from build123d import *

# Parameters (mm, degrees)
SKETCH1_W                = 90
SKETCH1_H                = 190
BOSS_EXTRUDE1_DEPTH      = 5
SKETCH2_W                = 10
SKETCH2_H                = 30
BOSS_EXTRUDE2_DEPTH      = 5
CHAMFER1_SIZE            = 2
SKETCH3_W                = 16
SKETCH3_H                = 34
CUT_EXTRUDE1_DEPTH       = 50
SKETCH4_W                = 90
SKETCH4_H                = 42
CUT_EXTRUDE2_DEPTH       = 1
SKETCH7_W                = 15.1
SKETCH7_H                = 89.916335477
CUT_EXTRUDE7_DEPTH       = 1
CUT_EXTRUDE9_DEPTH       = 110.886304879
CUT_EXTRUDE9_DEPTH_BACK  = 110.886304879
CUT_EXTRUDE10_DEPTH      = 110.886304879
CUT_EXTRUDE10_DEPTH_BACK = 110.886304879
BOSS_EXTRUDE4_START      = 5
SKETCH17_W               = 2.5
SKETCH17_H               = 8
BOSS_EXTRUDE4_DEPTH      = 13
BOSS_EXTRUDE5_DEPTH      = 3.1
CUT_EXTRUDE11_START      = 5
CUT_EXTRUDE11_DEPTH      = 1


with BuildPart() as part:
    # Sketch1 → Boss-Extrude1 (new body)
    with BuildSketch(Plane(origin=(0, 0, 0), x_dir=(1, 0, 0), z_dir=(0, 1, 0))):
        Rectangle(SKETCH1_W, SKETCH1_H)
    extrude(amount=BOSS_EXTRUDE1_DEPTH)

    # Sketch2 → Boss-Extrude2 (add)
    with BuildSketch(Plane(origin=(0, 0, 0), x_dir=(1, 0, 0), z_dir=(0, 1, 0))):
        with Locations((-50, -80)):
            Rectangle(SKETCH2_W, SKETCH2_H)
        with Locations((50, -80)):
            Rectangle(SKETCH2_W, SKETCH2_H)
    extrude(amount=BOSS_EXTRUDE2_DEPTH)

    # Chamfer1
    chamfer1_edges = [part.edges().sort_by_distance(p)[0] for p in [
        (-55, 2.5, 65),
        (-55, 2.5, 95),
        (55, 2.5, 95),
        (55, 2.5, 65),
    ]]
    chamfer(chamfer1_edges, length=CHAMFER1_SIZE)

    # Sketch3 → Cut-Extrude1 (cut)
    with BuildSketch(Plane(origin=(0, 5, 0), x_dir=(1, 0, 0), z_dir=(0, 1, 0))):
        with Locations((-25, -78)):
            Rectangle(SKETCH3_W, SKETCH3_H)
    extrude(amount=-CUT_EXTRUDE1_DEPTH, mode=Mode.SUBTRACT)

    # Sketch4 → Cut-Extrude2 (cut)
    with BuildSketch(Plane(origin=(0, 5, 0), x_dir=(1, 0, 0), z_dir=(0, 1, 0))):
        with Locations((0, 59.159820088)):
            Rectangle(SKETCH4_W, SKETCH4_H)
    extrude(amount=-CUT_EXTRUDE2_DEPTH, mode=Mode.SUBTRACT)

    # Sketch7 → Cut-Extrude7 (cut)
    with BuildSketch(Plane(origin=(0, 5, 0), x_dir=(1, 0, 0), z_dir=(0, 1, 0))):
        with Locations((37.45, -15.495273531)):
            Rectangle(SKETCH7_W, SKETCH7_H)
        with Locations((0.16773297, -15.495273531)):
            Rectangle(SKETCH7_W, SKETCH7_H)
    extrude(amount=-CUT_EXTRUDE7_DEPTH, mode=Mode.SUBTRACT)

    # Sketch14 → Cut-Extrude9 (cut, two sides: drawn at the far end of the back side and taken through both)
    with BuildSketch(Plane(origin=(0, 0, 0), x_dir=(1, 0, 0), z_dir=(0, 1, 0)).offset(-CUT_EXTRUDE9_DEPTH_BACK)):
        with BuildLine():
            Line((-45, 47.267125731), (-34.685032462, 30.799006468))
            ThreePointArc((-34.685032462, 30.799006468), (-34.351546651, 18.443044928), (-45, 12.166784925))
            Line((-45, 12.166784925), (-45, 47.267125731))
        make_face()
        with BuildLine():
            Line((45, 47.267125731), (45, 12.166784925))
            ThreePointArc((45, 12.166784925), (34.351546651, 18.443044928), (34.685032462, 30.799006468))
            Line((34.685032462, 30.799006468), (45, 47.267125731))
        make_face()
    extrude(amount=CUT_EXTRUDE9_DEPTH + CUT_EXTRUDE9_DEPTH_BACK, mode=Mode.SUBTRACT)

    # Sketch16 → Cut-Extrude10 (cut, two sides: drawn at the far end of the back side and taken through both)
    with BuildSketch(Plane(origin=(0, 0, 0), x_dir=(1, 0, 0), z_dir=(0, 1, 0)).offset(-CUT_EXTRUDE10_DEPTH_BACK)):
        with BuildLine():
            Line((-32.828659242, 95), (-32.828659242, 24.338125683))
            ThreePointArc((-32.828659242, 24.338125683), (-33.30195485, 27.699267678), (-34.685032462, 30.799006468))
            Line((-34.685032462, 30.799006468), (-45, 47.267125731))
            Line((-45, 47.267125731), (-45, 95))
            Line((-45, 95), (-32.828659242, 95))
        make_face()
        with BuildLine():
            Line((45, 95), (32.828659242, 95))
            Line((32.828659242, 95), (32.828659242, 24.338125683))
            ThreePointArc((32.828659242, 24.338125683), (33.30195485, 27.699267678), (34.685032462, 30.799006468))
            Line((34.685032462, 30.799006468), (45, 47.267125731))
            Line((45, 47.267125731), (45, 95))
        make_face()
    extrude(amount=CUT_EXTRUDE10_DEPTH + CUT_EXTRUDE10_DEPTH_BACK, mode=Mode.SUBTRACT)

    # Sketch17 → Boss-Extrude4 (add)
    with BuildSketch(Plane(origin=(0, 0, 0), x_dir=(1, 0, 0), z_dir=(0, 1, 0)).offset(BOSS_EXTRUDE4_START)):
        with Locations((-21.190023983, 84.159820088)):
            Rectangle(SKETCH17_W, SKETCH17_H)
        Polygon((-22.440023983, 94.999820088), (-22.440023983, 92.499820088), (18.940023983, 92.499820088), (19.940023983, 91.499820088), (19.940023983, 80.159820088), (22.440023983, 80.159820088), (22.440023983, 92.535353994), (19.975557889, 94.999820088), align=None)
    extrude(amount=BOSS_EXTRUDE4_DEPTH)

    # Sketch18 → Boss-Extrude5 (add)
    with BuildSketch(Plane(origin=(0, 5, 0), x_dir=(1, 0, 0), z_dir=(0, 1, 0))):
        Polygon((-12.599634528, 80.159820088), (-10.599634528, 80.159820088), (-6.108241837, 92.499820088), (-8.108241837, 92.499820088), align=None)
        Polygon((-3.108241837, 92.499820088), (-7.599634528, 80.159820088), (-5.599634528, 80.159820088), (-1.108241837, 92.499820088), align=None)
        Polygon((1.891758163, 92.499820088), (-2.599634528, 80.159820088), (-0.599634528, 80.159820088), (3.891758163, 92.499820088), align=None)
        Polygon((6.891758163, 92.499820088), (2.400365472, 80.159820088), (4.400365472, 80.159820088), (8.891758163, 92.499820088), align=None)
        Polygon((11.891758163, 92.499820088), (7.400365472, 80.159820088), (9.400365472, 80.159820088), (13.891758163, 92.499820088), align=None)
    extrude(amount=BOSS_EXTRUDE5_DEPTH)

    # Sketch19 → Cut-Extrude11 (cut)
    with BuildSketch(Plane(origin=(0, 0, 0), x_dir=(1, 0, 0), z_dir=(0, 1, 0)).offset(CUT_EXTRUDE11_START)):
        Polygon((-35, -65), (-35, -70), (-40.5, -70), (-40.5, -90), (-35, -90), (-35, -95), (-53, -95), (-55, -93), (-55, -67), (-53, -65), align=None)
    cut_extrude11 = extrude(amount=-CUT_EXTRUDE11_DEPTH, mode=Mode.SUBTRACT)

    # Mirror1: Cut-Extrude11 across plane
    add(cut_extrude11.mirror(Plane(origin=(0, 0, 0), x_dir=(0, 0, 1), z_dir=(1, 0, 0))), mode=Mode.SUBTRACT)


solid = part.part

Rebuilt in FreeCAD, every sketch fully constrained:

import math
import FreeCAD as App
import Part
import Sketcher

V = App.Vector
Q = App.Units.Quantity


def edges_at(feature, points):
    """Names of the edges that pass closest to the given points."""
    edges = feature.Shape.Edges
    near = lambda p: min(range(len(edges)), key=lambda i: edges[i].distToShape(Part.Vertex(*p))[0])
    return sorted({f"Edge{near(p) + 1}" for p in points})


def add_polygon(sketch, points):
    """Adds a closed chain of lines whose ends are joined by coincident constraints."""
    first, n = sketch.GeometryCount, len(points)
    for a, b in zip(points, points[1:] + points[:1]):
        sketch.addGeometry(Part.LineSegment(App.Vector(*a, 0), App.Vector(*b, 0)), False)
    for i in range(n):
        sketch.addConstraint(Sketcher.Constraint("Coincident", first + i, 2, first + (i + 1) % n, 1))

doc = App.newDocument("Part")
body = doc.addObject("PartDesign::Body", "Body")

# Sketch on XZ plane
sketch1 = body.newObject("Sketcher::SketchObject", "Sketch")
sketch1.AttachmentSupport = (doc.getObject("XZ_Plane"), [""])
sketch1.MapMode = "FlatFace"
add_polygon(sketch1, [(-45, -95), (-45, 95), (45, 95), (45, -95)])  # lines 0-3
sketch1.addConstraint([
    Sketcher.Constraint("Vertical", 0),
    Sketcher.Constraint("Horizontal", 1),
    Sketcher.Constraint("Vertical", 2),
    Sketcher.Constraint("Horizontal", 3),
    Sketcher.Constraint("Symmetric", 0, 2, 2, 2, -1, 1),
    Sketcher.Constraint("DistanceX", 1, 1, 1, 2, 90.0),
    Sketcher.Constraint("DistanceY", 0, 1, 0, 2, 190.0),
])
pad1 = body.newObject("PartDesign::Pad", "Pad")
pad1.Profile = sketch1
pad1.Length = 5
pad1.Reversed = True

# Sketch on XZ plane
sketch2 = body.newObject("Sketcher::SketchObject", "Sketch001")
sketch2.AttachmentSupport = (doc.getObject("XZ_Plane"), [""])
sketch2.MapMode = "FlatFace"
add_polygon(sketch2, [(-55, 65), (-55, 95), (-45, 95), (-45, 65)])  # lines 0-3
add_polygon(sketch2, [(45, 65), (45, 95), (55, 95), (55, 65)])  # lines 4-7
sketch2.addConstraint([
    Sketcher.Constraint("Vertical", 0),
    Sketcher.Constraint("Horizontal", 1),
    Sketcher.Constraint("Vertical", 2),
    Sketcher.Constraint("Horizontal", 3),
    Sketcher.Constraint("Vertical", 4),
    Sketcher.Constraint("Horizontal", 5),
    Sketcher.Constraint("Vertical", 6),
    Sketcher.Constraint("Horizontal", 7),
    Sketcher.Constraint("Symmetric", 1, 2, 4, 2, -2),
    Sketcher.Constraint("Symmetric", 3, 2, 6, 2, -2),
    Sketcher.Constraint("DistanceX", 1, 1, 1, 2, 10.0),
    Sketcher.Constraint("DistanceY", 0, 1, 0, 2, 30.0),
    Sketcher.Constraint("DistanceX", 0, 2, -1, 1, 55.0),
    Sketcher.Constraint("DistanceY", -1, 1, 0, 2, 95.0),
])
pad2 = body.newObject("PartDesign::Pad", "Pad001")
pad2.Profile = sketch2
pad2.Length = 5
pad2.Reversed = True
doc.recompute()

chamfer = body.newObject("PartDesign::Chamfer", "Chamfer")
chamfer.Base = (pad2, edges_at(pad2, [
    (-55, 2.5, 65),
    (-55, 2.5, 95),
    (55, 2.5, 95),
    (55, 2.5, 65),
]))
chamfer.Size = 2

# Sketch on XZ plane
sketch3 = body.newObject("Sketcher::SketchObject", "Sketch002")
sketch3.AttachmentSupport = (doc.getObject("XZ_Plane"), [""])
sketch3.MapMode = "FlatFace"
sketch3.AttachmentOffset = App.Placement(V(0, 0, -5), App.Rotation())
add_polygon(sketch3, [(-33, 61), (-33, 95), (-17, 95), (-17, 61)])  # lines 0-3
sketch3.addConstraint([
    Sketcher.Constraint("Vertical", 0),
    Sketcher.Constraint("Horizontal", 1),
    Sketcher.Constraint("Vertical", 2),
    Sketcher.Constraint("Horizontal", 3),
    Sketcher.Constraint("DistanceX", 1, 1, 1, 2, 16.0),
    Sketcher.Constraint("DistanceY", 0, 1, 0, 2, 34.0),
    Sketcher.Constraint("DistanceX", 0, 2, -1, 1, 33.0),
    Sketcher.Constraint("DistanceY", -1, 1, 0, 2, 95.0),
])
pocket1 = body.newObject("PartDesign::Pocket", "Pocket")
pocket1.Profile = sketch3
pocket1.Length = 50
pocket1.Reversed = True

# Sketch on XZ plane
sketch4 = body.newObject("Sketcher::SketchObject", "Sketch003")
sketch4.AttachmentSupport = (doc.getObject("XZ_Plane"), [""])
sketch4.MapMode = "FlatFace"
sketch4.AttachmentOffset = App.Placement(V(0, 0, -5), App.Rotation())
add_polygon(sketch4, [(-45, -80), (-45, -38), (45, -38), (45, -80)])  # lines 0-3
sketch4.addConstraint([
    Sketcher.Constraint("Vertical", 0),
    Sketcher.Constraint("Horizontal", 1),
    Sketcher.Constraint("Vertical", 2),
    Sketcher.Constraint("Horizontal", 3),
    Sketcher.Constraint("DistanceX", 1, 1, 1, 2, 90.0),
    Sketcher.Constraint("DistanceY", 0, 1, 0, 2, 42.0),
    Sketcher.Constraint("DistanceX", 0, 2, -1, 1, 45.0),
    Sketcher.Constraint("DistanceY", 0, 2, -1, 1, 38.15982),
])
pocket2 = body.newObject("PartDesign::Pocket", "Pocket001")
pocket2.Profile = sketch4
pocket2.Length = 1
pocket2.Reversed = True

# Sketch on XZ plane
sketch5 = body.newObject("Sketcher::SketchObject", "Sketch004")
sketch5.AttachmentSupport = (doc.getObject("XZ_Plane"), [""])
sketch5.MapMode = "FlatFace"
sketch5.AttachmentOffset = App.Placement(V(0, 0, -5), App.Rotation())
add_polygon(sketch5, [(30, -29), (30, 60), (45, 60), (45, -29)])  # lines 0-3
add_polygon(sketch5, [(-7, -29), (-7, 60), (8, 60), (8, -29)])  # lines 4-7
sketch5.addConstraint([
    Sketcher.Constraint("Vertical", 0),
    Sketcher.Constraint("Horizontal", 1),
    Sketcher.Constraint("Vertical", 2),
    Sketcher.Constraint("Horizontal", 3),
    Sketcher.Constraint("Vertical", 4),
    Sketcher.Constraint("Horizontal", 5),
    Sketcher.Constraint("Vertical", 6),
    Sketcher.Constraint("Horizontal", 7),
    Sketcher.Constraint("Horizontal", 1, 2, 4, 2),
    Sketcher.Constraint("Horizontal", 3, 2, 6, 2),
    Sketcher.Constraint("Equal", 3, 5),
    Sketcher.Constraint("DistanceX", 1, 1, 1, 2, 15.1),
    Sketcher.Constraint("DistanceX", -1, 1, 1, 2, 45.0),
    Sketcher.Constraint("DistanceY", 0, 1, 0, 2, 89.916335),
    Sketcher.Constraint("DistanceY", -1, 1, 0, 2, 60.453441),
    Sketcher.Constraint("DistanceX", 4, 2, -1, 1, 7.382267),
])
pocket3 = body.newObject("PartDesign::Pocket", "Pocket002")
pocket3.Profile = sketch5
pocket3.Length = 1
pocket3.Reversed = True

# Sketch on XZ plane
sketch6 = body.newObject("Sketcher::SketchObject", "Sketch005")
sketch6.AttachmentSupport = (doc.getObject("XZ_Plane"), [""])
sketch6.MapMode = "FlatFace"
sketch6.addGeometry([
    Part.LineSegment(V(-35, -31, 0), V(-45, -47, 0)),  # 0
    Part.LineSegment(V(-45, -47, 0), V(-45, -12, 0)),  # 1
    Part.ArcOfCircle(Part.Circle(V(-45, -24, 0), V(0, 0, 1), 12), math.radians(-32), math.radians(90)),  # 2
    Part.LineSegment(V(45, -12, 0), V(45, -47, 0)),  # 3
    Part.LineSegment(V(45, -47, 0), V(35, -31, 0)),  # 4
    Part.ArcOfCircle(Part.Circle(V(45, -24, 0), V(0, 0, 1), 12), math.radians(90), math.radians(212)),  # 5
], False)
sketch6.addConstraint([
    Sketcher.Constraint("Coincident", 0, 2, 1, 1),
    Sketcher.Constraint("Coincident", 1, 2, 2, 2),
    Sketcher.Constraint("Tangent", 2, 1, 0, 1),
    Sketcher.Constraint("Coincident", 3, 2, 4, 1),
    Sketcher.Constraint("Tangent", 4, 2, 5, 2),
    Sketcher.Constraint("Coincident", 5, 1, 3, 1),
    Sketcher.Constraint("Vertical", 1),
    Sketcher.Constraint("Vertical", 3),
    Sketcher.Constraint("Equal", 2, 5),
    Sketcher.Constraint("Symmetric", 2, 3, 5, 3, -2),
    Sketcher.Constraint("Symmetric", 0, 2, 3, 2, -2),
    Sketcher.Constraint("Vertical", 2, 3, 0, 2),
    Sketcher.Constraint("DistanceX", 2, 3, -1, 1, 45.0),
    Sketcher.Constraint("Radius", 2, 12.171341),
    Sketcher.Constraint("DistanceY", 0, 2, 2, 3, 22.929),
    Sketcher.Constraint("DistanceY", 2, 3, -1, 1, 24.338126),
])
pocket4 = body.newObject("PartDesign::Pocket", "Pocket003")
pocket4.Profile = sketch6
pocket4.Type = "ThroughAll"
pocket4.Midplane = True

# Sketch on XZ plane
sketch7 = body.newObject("Sketcher::SketchObject", "Sketch006")
sketch7.AttachmentSupport = (doc.getObject("XZ_Plane"), [""])
sketch7.MapMode = "FlatFace"
sketch7.addGeometry([
    Part.LineSegment(V(-33, -24, 0), V(-33, -95, 0)),  # 0
    Part.LineSegment(V(-33, -95, 0), V(-45, -95, 0)),  # 1
    Part.LineSegment(V(-45, -95, 0), V(-45, -47, 0)),  # 2
    Part.LineSegment(V(-45, -47, 0), V(-35, -31, 0)),  # 3
    Part.ArcOfCircle(Part.Circle(V(-45, -24, 0), V(0, 0, 1), 12), math.radians(-32), math.radians(0)),  # 4
    Part.LineSegment(V(45, -95, 0), V(33, -95, 0)),  # 5
    Part.LineSegment(V(33, -95, 0), V(33, -24, 0)),  # 6
    Part.ArcOfCircle(Part.Circle(V(45, -24, 0), V(0, 0, 1), 12), math.radians(180), math.radians(212)),  # 7
    Part.LineSegment(V(35, -31, 0), V(45, -47, 0)),  # 8
    Part.LineSegment(V(45, -47, 0), V(45, -95, 0)),  # 9
], False)
sketch7.addConstraint([
    Sketcher.Constraint("Coincident", 0, 2, 1, 1),
    Sketcher.Constraint("Coincident", 1, 2, 2, 1),
    Sketcher.Constraint("Coincident", 2, 2, 3, 1),
    Sketcher.Constraint("Tangent", 3, 2, 4, 1),
    Sketcher.Constraint("Tangent", 4, 2, 0, 1),
    Sketcher.Constraint("Coincident", 5, 2, 6, 1),
    Sketcher.Constraint("Tangent", 6, 2, 7, 1),
    Sketcher.Constraint("Tangent", 7, 2, 8, 1),
    Sketcher.Constraint("Coincident", 8, 2, 9, 1),
    Sketcher.Constraint("Coincident", 9, 2, 5, 1),
    Sketcher.Constraint("Vertical", 0),
    Sketcher.Constraint("Horizontal", 1),
    Sketcher.Constraint("Vertical", 2),
    Sketcher.Constraint("Horizontal", 5),
    Sketcher.Constraint("Vertical", 6),
    Sketcher.Constraint("Vertical", 9),
    Sketcher.Constraint("Equal", 4, 7),
    Sketcher.Constraint("Symmetric", 4, 3, 7, 3, -2),
    Sketcher.Constraint("Symmetric", 2, 2, 8, 2, -2),
    Sketcher.Constraint("Horizontal", 1, 2, 5, 2),
    Sketcher.Constraint("Vertical", 4, 3, 1, 2),
    Sketcher.Constraint("DistanceX", 4, 3, -1, 1, 45.0),
    Sketcher.Constraint("DistanceY", 0, 2, -1, 1, 95.0),
    Sketcher.Constraint("Radius", 4, 12.171341),
    Sketcher.Constraint("DistanceY", 2, 2, 4, 3, 22.929),
    Sketcher.Constraint("DistanceY", 0, 2, 0, 1, 70.661874),
])
pocket5 = body.newObject("PartDesign::Pocket", "Pocket004")
pocket5.Profile = sketch7
pocket5.Type = "ThroughAll"
pocket5.Midplane = True

# Sketch on XZ plane
sketch8 = body.newObject("Sketcher::SketchObject", "Sketch007")
sketch8.AttachmentSupport = (doc.getObject("XZ_Plane"), [""])
sketch8.MapMode = "FlatFace"
sketch8.AttachmentOffset = App.Placement(V(0, 0, -5), App.Rotation())
add_polygon(sketch8, [(-22.4, -88.2), (-22.4, -80.2), (-19.9, -80.2), (-19.9, -88.2)])  # lines 0-3
add_polygon(sketch8, [(-22.4, -95), (-22.4, -92.5), (18.9, -92.5), (19.9, -91.5), (19.9, -80.2), (22.4, -80.2), (22.4, -92.5), (20, -95)])  # lines 4-11
sketch8.addConstraint([
    Sketcher.Constraint("Vertical", 0),
    Sketcher.Constraint("Horizontal", 1),
    Sketcher.Constraint("Vertical", 2),
    Sketcher.Constraint("Horizontal", 3),
    Sketcher.Constraint("Vertical", 4),
    Sketcher.Constraint("Horizontal", 5),
    Sketcher.Constraint("Vertical", 7),
    Sketcher.Constraint("Horizontal", 8),
    Sketcher.Constraint("Vertical", 9),
    Sketcher.Constraint("Horizontal", 11),
    Sketcher.Constraint("Symmetric", 1, 2, 7, 2, -2),
    Sketcher.Constraint("Parallel", 6, 10),
    Sketcher.Constraint("Vertical", 3, 2, 4, 2),
    Sketcher.Constraint("Equal", 3, 8),
    Sketcher.Constraint("Equal", 8, 4),
    Sketcher.Constraint("DistanceY", 0, 1, 0, 2, 8.0),
    Sketcher.Constraint("Angle", 6, Q("45 deg")),
    Sketcher.Constraint("DistanceX", 1, 1, 1, 2, 2.5),
    Sketcher.Constraint("DistanceX", 5, 2, 6, 2, 1.0),
    Sketcher.Constraint("DistanceY", 7, 1, 7, 2, 11.34),
    Sketcher.Constraint("DistanceX", 11, 2, 11, 1, 42.415582),
    Sketcher.Constraint("Distance", 10, 3.485281),
    Sketcher.Constraint("DistanceY", 0, 2, -1, 1, 80.15982),
])
pad3 = body.newObject("PartDesign::Pad", "Pad002")
pad3.Profile = sketch8
pad3.Length = 13
pad3.Reversed = True

# Sketch on XZ plane
sketch9 = body.newObject("Sketcher::SketchObject", "Sketch008")
sketch9.AttachmentSupport = (doc.getObject("XZ_Plane"), [""])
sketch9.MapMode = "FlatFace"
sketch9.AttachmentOffset = App.Placement(V(0, 0, -5), App.Rotation())
add_polygon(sketch9, [(-12.6, -80.2), (-10.6, -80.2), (-6.1, -92.5), (-8.1, -92.5)])  # lines 0-3
add_polygon(sketch9, [(-3.1, -92.5), (-7.6, -80.2), (-5.6, -80.2), (-1.1, -92.5)])  # lines 4-7
add_polygon(sketch9, [(1.9, -92.5), (-2.6, -80.2), (-0.6, -80.2), (3.9, -92.5)])  # lines 8-11
add_polygon(sketch9, [(6.9, -92.5), (2.4, -80.2), (4.4, -80.2), (8.9, -92.5)])  # lines 12-15
add_polygon(sketch9, [(11.9, -92.5), (7.4, -80.2), (9.4, -80.2), (13.9, -92.5)])  # lines 16-19
sketch9.addConstraint([
    Sketcher.Constraint("Horizontal", 0),
    Sketcher.Constraint("Horizontal", 2),
    Sketcher.Constraint("Horizontal", 5),
    Sketcher.Constraint("Horizontal", 7),
    Sketcher.Constraint("Horizontal", 9),
    Sketcher.Constraint("Horizontal", 11),
    Sketcher.Constraint("Horizontal", 13),
    Sketcher.Constraint("Horizontal", 15),
    Sketcher.Constraint("Horizontal", 17),
    Sketcher.Constraint("Horizontal", 19),
    Sketcher.Constraint("Parallel", 1, 3),
    Sketcher.Constraint("Parallel", 3, 4),
    Sketcher.Constraint("Parallel", 4, 6),
    Sketcher.Constraint("Parallel", 6, 8),
    Sketcher.Constraint("Parallel", 8, 10),
    Sketcher.Constraint("Parallel", 10, 12),
    Sketcher.Constraint("Parallel", 12, 14),
    Sketcher.Constraint("Parallel", 14, 16),
    Sketcher.Constraint("Parallel", 16, 18),
    Sketcher.Constraint("Horizontal", 3, 2, 4, 2),
    Sketcher.Constraint("Horizontal", 2, 2, 6, 2),
    Sketcher.Constraint("Horizontal", 5, 2, 8, 2),
    Sketcher.Constraint("Horizontal", 7, 2, 10, 2),
    Sketcher.Constraint("Horizontal", 9, 2, 12, 2),
    Sketcher.Constraint("Horizontal", 11, 2, 14, 2),
    Sketcher.Constraint("Horizontal", 13, 2, 16, 2),
    Sketcher.Constraint("Horizontal", 15, 2, 18, 2),
    Sketcher.Constraint("Equal", 2, 5),
    Sketcher.Constraint("Equal", 7, 9),
    Sketcher.Constraint("Equal", 11, 13),
    Sketcher.Constraint("Equal", 15, 17),
    Sketcher.Constraint("DistanceX", 0, 1, 0, 2, 2.0),
    Sketcher.Constraint("Angle", 1, Q("-70 deg")),
    Sketcher.Constraint("DistanceX", 0, 2, 4, 2, 3.0),
    Sketcher.Constraint("DistanceX", 5, 2, 8, 2, 3.0),
    Sketcher.Constraint("DistanceX", 9, 2, 12, 2, 3.0),
    Sketcher.Constraint("DistanceX", 13, 2, 16, 2, 3.0),
    Sketcher.Constraint("DistanceY", 1, 2, 0, 2, 12.34),
    Sketcher.Constraint("DistanceY", 0, 2, -1, 1, 80.15982),
    Sketcher.Constraint("DistanceX", 1, 2, -1, 1, 6.108242),
])
pad4 = body.newObject("PartDesign::Pad", "Pad003")
pad4.Profile = sketch9
pad4.Length = 3.1
pad4.Reversed = True

# Sketch on XZ plane
sketch10 = body.newObject("Sketcher::SketchObject", "Sketch009")
sketch10.AttachmentSupport = (doc.getObject("XZ_Plane"), [""])
sketch10.MapMode = "FlatFace"
sketch10.AttachmentOffset = App.Placement(V(0, 0, -5), App.Rotation())
add_polygon(sketch10, [(-35, 70), (-35, 65), (-53, 65), (-55, 67), (-55, 93), (-53, 95), (-35, 95), (-35, 90), (-40.5, 90), (-40.5, 70)])  # lines 0-9
sketch10.addConstraint([
    Sketcher.Constraint("Vertical", 0),
    Sketcher.Constraint("Horizontal", 1),
    Sketcher.Constraint("Vertical", 3),
    Sketcher.Constraint("Horizontal", 5),
    Sketcher.Constraint("Vertical", 6),
    Sketcher.Constraint("Horizontal", 7),
    Sketcher.Constraint("Vertical", 8),
    Sketcher.Constraint("Horizontal", 9),
    Sketcher.Constraint("Perpendicular", 2, 4),
    Sketcher.Constraint("Vertical", 1, 2, 4, 2),
    Sketcher.Constraint("Vertical", 0, 2, 5, 2),
    Sketcher.Constraint("Equal", 0, 6),
    Sketcher.Constraint("Equal", 2, 4),
    Sketcher.Constraint("DistanceX", 1, 2, 1, 1, 18.0),
    Sketcher.Constraint("DistanceY", 0, 2, 0, 1, 5.0),
    Sketcher.Constraint("DistanceY", 3, 1, 3, 2, 26.0),
    Sketcher.Constraint("DistanceY", 8, 2, 8, 1, 20.0),
    Sketcher.Constraint("DistanceX", 7, 2, 7, 1, 5.5),
    Sketcher.Constraint("DistanceX", 0, 2, -1, 1, 35.0),
    Sketcher.Constraint("DistanceY", -1, 1, 0, 2, 65.0),
])
pocket6 = body.newObject("PartDesign::Pocket", "Pocket005")
pocket6.Profile = sketch10
pocket6.Length = 1
pocket6.Reversed = True
doc.recompute()

mirrored = body.newObject("PartDesign::Mirrored", "Mirrored")
mirrored.Originals = [pocket6]
mirrored.MirrorPlane = (doc.getObject("YZ_Plane"), [""])
body.Tip = mirrored

doc.recompute()
